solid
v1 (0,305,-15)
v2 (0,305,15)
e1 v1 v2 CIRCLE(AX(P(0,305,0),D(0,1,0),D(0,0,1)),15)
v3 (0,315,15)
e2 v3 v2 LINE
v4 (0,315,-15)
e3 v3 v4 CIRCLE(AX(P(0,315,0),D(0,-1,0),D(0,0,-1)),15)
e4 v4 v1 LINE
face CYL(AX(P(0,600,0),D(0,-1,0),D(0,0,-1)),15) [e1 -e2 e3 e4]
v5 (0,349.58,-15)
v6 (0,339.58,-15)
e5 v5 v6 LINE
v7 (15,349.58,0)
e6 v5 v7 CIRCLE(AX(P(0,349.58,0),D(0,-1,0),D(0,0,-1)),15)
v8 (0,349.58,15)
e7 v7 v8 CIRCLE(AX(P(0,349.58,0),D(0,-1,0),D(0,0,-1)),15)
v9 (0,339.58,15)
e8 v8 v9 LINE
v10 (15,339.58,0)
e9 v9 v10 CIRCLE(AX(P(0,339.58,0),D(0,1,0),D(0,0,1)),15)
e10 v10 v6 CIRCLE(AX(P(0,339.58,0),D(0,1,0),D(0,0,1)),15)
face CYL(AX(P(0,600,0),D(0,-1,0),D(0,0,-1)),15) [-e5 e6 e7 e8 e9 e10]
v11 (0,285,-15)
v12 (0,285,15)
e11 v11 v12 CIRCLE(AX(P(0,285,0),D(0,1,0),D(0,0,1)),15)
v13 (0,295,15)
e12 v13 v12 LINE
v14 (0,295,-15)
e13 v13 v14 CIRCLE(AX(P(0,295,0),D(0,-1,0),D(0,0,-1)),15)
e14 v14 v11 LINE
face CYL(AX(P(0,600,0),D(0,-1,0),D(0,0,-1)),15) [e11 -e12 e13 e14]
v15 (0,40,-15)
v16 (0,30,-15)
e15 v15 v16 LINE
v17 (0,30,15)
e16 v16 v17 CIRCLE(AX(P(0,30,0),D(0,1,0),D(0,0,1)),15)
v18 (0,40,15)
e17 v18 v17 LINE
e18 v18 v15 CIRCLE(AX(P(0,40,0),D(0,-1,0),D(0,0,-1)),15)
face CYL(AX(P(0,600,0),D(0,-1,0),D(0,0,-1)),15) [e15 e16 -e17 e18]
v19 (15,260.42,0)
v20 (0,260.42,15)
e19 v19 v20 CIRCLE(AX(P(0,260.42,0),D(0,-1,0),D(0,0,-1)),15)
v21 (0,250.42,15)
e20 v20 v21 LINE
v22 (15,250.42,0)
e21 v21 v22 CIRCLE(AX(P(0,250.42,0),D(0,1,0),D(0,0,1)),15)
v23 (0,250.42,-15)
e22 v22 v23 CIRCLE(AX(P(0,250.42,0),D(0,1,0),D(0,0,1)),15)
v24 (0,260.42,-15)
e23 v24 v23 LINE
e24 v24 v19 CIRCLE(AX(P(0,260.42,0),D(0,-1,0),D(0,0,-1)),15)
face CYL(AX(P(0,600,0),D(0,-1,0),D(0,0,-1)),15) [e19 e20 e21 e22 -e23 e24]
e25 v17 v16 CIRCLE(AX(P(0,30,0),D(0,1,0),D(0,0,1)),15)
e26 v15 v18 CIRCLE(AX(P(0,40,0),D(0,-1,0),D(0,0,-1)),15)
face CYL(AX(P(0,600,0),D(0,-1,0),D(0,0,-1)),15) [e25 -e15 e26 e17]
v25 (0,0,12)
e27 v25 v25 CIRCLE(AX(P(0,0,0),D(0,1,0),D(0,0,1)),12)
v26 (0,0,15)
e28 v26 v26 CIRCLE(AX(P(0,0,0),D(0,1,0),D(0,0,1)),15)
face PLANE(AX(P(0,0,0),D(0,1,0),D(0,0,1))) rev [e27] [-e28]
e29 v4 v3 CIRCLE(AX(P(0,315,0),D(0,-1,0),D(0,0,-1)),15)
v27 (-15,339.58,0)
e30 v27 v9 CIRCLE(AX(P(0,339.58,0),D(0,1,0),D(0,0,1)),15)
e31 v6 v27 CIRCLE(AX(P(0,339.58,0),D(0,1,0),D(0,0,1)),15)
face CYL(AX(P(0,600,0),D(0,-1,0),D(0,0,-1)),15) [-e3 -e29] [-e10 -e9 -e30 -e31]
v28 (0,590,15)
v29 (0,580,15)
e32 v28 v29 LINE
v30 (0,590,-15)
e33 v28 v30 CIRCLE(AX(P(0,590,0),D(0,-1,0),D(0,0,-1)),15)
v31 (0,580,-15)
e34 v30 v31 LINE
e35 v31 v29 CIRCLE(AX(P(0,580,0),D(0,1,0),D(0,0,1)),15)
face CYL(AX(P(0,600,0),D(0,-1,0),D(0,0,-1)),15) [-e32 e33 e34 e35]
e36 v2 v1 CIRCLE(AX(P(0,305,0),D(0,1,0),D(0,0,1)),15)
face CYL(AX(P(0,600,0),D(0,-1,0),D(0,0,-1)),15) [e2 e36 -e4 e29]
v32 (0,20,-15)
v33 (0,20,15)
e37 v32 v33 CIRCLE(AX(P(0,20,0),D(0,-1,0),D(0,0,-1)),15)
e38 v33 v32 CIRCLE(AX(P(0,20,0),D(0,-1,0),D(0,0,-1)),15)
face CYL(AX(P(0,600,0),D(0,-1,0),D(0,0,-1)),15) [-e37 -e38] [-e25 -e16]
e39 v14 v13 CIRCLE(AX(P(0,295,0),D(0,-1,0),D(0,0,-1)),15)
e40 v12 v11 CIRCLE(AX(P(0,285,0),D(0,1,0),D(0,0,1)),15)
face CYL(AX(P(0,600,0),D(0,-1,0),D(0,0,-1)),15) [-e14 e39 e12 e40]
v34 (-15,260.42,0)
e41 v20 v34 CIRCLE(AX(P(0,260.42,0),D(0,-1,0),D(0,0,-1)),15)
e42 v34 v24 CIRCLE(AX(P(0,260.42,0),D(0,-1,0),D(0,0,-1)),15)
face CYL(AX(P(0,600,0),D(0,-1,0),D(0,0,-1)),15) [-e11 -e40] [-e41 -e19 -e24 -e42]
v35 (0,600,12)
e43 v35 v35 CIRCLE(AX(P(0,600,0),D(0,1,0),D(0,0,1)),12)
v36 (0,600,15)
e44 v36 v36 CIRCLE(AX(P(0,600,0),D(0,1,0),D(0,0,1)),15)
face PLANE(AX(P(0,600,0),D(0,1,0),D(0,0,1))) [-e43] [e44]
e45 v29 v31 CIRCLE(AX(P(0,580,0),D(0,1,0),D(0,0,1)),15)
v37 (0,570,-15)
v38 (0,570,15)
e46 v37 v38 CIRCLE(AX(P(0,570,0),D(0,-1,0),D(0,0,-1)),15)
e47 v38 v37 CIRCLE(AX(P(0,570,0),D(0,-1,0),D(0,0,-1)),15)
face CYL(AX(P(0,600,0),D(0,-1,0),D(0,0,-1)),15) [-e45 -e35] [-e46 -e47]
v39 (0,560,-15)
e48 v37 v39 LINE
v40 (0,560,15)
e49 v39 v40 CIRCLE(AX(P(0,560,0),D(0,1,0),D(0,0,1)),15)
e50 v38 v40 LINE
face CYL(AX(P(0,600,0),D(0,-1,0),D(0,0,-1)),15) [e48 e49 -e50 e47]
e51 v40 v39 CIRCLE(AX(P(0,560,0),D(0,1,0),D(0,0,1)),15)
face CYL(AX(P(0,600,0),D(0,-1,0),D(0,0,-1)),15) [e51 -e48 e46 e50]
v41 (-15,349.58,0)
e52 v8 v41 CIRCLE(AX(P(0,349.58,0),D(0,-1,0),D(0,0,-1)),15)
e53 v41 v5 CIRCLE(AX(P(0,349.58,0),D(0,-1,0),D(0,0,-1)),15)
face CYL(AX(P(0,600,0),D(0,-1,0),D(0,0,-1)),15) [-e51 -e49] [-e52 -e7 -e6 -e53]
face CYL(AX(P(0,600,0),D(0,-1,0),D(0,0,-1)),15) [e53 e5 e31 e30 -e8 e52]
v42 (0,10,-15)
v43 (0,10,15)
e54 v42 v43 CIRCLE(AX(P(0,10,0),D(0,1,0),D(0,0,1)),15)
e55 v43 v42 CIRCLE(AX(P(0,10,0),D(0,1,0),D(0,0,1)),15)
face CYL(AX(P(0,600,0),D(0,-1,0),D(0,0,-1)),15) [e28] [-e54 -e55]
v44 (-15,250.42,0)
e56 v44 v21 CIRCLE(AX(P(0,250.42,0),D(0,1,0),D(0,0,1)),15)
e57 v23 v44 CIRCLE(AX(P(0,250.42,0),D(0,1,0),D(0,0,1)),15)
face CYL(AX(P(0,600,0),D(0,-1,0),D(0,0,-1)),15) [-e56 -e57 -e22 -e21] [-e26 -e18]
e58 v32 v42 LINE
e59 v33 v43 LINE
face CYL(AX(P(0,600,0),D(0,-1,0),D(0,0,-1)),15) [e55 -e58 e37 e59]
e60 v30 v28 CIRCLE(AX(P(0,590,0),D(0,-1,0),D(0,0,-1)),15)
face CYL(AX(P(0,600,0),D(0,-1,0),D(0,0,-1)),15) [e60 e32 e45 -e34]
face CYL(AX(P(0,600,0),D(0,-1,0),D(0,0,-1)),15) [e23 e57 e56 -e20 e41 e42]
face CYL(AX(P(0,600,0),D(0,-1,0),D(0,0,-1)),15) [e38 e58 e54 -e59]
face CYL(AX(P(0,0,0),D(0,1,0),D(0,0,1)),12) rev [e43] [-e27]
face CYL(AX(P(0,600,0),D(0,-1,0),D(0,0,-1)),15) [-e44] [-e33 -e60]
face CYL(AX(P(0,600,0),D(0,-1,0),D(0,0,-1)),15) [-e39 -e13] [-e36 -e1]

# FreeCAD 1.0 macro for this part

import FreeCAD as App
import Part
import Sketcher

V = App.Vector
Q = App.Units.Quantity

doc = App.newDocument("Part")
params = doc.addObject("Spreadsheet::Sheet", "Params")
for row, (alias, value) in enumerate([
    ("sketch1_diameter", "30 mm"),
    ("pad1_length", "600 mm"),
    ("sketch2_diameter", "24 mm"),
    ("pocket1_length", "600 mm"),
], start=1):
    params.set(f"A{row}", alias)
    params.set(f"B{row}", "=" + value)
    params.setAlias(f"B{row}", alias)

body = doc.addObject("PartDesign::Body", "Body")

# Sketch on XZ plane
sketch1 = body.newObject("Sketcher::SketchObject", "Sketch")
sketch1.AttachmentSupport = (doc.getObject("XZ_Plane"), [""])
sketch1.MapMode = "FlatFace"
sketch1.addGeometry(Part.Circle(V(0, 0, 0), V(0, 0, 1), 15), False)
sketch1.addConstraint([
    Sketcher.Constraint("Coincident", 0, 3, -1, 1),
    Sketcher.Constraint("Diameter", 0, Q("30 mm")),
])
sketch1.setExpression("Constraints[1]", "Params.sketch1_diameter")
pad1 = body.newObject("PartDesign::Pad", "Pad")
pad1.Profile = sketch1
pad1.setExpression("Length", "Params.pad1_length")
pad1.Reversed = True

# Sketch on XZ plane
sketch2 = body.newObject("Sketcher::SketchObject", "Sketch001")
sketch2.AttachmentSupport = (doc.getObject("XZ_Plane"), [""])
sketch2.MapMode = "FlatFace"
sketch2.AttachmentOffset = App.Placement(V(0, 0, -600), App.Rotation())
sketch2.addGeometry(Part.Circle(V(0, 0, 0), V(0, 0, 1), 12), False)
sketch2.addConstraint([
    Sketcher.Constraint("Coincident", 0, 3, -1, 1),
    Sketcher.Constraint("Diameter", 0, Q("24 mm")),
])
sketch2.setExpression("Constraints[1]", "Params.sketch2_diameter")
pocket1 = body.newObject("PartDesign::Pocket", "Pocket")
pocket1.Profile = sketch2
pocket1.setExpression("Length", "Params.pocket1_length")
pocket1.Reversed = True

doc.recompute()
